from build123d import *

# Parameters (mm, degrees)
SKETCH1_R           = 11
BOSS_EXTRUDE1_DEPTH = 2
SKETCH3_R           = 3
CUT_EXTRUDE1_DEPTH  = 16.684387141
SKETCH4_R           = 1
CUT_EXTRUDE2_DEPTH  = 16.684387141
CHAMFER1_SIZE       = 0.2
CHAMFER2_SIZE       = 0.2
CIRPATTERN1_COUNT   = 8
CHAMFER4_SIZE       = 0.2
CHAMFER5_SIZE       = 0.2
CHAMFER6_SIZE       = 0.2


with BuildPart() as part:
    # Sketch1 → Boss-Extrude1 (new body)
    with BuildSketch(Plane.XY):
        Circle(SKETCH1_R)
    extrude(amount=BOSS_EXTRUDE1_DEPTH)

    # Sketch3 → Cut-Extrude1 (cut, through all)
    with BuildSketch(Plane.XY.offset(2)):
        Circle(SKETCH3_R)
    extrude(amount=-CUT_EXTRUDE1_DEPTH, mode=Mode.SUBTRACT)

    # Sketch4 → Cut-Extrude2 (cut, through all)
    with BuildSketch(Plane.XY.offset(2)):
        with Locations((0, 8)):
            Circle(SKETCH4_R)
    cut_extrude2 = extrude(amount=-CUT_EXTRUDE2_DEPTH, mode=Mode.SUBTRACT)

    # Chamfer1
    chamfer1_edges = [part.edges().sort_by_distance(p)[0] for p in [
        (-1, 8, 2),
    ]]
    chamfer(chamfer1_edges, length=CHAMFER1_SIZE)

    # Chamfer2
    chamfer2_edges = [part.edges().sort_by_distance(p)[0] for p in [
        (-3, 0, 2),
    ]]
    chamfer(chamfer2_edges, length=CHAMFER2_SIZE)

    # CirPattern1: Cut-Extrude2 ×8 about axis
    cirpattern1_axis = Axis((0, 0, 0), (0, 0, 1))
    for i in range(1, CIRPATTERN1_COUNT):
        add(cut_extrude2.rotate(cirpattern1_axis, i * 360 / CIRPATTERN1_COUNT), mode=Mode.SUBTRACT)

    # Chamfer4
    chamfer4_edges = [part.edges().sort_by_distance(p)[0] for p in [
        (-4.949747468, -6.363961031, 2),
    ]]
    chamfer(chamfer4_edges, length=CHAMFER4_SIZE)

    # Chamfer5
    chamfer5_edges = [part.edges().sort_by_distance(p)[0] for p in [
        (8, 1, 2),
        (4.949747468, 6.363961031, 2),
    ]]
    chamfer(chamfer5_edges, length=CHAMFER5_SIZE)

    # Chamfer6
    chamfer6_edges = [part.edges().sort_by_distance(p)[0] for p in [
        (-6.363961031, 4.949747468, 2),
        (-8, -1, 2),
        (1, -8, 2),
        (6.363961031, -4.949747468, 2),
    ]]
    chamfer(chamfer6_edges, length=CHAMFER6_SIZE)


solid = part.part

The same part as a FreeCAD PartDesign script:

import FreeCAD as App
import Part
import Sketcher

V = App.Vector
Q = App.Units.Quantity


def edges_at(feature, points):
    """Names of the edges that pass closest to the given points."""
    edges = feature.Shape.Edges
    near = lambda p: min(range(len(edges)), key=lambda i: edges[i].distToShape(Part.Vertex(*p))[0])
    return sorted({f"Edge{near(p) + 1}" for p in points})

doc = App.newDocument("Part")
params = doc.addObject("Spreadsheet::Sheet", "Params")
for row, (alias, value) in enumerate([
    ("sketch1_diameter", "22 mm"),
    ("pad1_length", "2 mm"),
    ("sketch2_diameter", "6 mm"),
    ("sketch3_diameter", "2 mm"),
    ("chamfer_size", "0.2 mm"),
    ("chamfer2_size", "0.2 mm"),
    ("chamfer3_size", "0.2 mm"),
    ("chamfer4_size", "0.2 mm"),
    ("chamfer5_size", "0.2 mm"),
], start=1):
    params.set(f"A{row}", alias)
    params.set(f"B{row}", "=" + value)
    params.setAlias(f"B{row}", alias)

body = doc.addObject("PartDesign::Body", "Body")

# Sketch on XY plane
sketch1 = doc.addObject("Sketcher::SketchObject", "Sketch")
body.addObject(sketch1)
sketch1.AttachmentSupport = (doc.XY_Plane, [""])
sketch1.MapMode = "FlatFace"
sketch1.addGeometry(Part.Circle(V(0, 0, 0), V(0, 0, 1), 11), False)
sketch1.addConstraint([
    Sketcher.Constraint("Coincident", 0, 3, -1, 1),
    Sketcher.Constraint("Diameter", 0, Q("22 mm")),
])
sketch1.setExpression("Constraints[1]", "Params.sketch1_diameter")
pad1 = doc.addObject("PartDesign::Pad", "Pad")
body.addObject(pad1)
pad1.Profile = sketch1
pad1.setExpression("Length", "Params.pad1_length")

# Sketch on XY plane
sketch2 = doc.addObject("Sketcher::SketchObject", "Sketch001")
body.addObject(sketch2)
sketch2.AttachmentSupport = (doc.XY_Plane, [""])
sketch2.MapMode = "FlatFace"
sketch2.AttachmentOffset = App.Placement(V(0, 0, 2), App.Rotation())
sketch2.addGeometry(Part.Circle(V(0, 0, 0), V(0, 0, 1), 3), False)
sketch2.addConstraint([
    Sketcher.Constraint("Coincident", 0, 3, -1, 1),
    Sketcher.Constraint("Diameter", 0, Q("6 mm")),
])
sketch2.setExpression("Constraints[1]", "Params.sketch2_diameter")
pocket1 = doc.addObject("PartDesign::Pocket", "Pocket")
body.addObject(pocket1)
pocket1.Profile = sketch2
pocket1.Type = "ThroughAll"

# Sketch on XY plane
sketch3 = doc.addObject("Sketcher::SketchObject", "Sketch002")
body.addObject(sketch3)
sketch3.AttachmentSupport = (doc.XY_Plane, [""])
sketch3.MapMode = "FlatFace"
sketch3.AttachmentOffset = App.Placement(V(0, 0, 2), App.Rotation())
sketch3.addGeometry(Part.Circle(V(0, 8, 0), V(0, 0, 1), 1), False)
sketch3.addConstraint([
    Sketcher.Constraint("PointOnObject", 0, 3, -2),
    Sketcher.Constraint("Diameter", 0, Q("2 mm")),
    Sketcher.Constraint("DistanceY", -1, 1, 0, 3, Q("8 mm")),
])
sketch3.setExpression("Constraints[1]", "Params.sketch3_diameter")
pocket2 = doc.addObject("PartDesign::Pocket", "Pocket001")
body.addObject(pocket2)
pocket2.Profile = sketch3
pocket2.Type = "ThroughAll"
doc.recompute()

chamfer = doc.addObject("PartDesign::Chamfer", "Chamfer")
body.addObject(chamfer)
chamfer.Base = (pocket2, edges_at(pocket2, [(-1, 8, 2)]))
chamfer.setExpression("Size", "Params.chamfer_size")
doc.recompute()

chamfer2 = doc.addObject("PartDesign::Chamfer", "Chamfer001")
body.addObject(chamfer2)
chamfer2.Base = (chamfer, edges_at(chamfer, [(-3, 0, 2)]))
chamfer2.setExpression("Size", "Params.chamfer2_size")
doc.recompute()

polarpattern = doc.addObject("PartDesign::PolarPattern", "PolarPattern")
body.addObject(polarpattern)
polarpattern.Originals = [pocket2]
polarpattern.Axis = (doc.Z_Axis, [""])
polarpattern.Angle = 360
polarpattern.Occurrences = 8
body.Tip = polarpattern
doc.recompute()

chamfer3 = doc.addObject("PartDesign::Chamfer", "Chamfer002")
body.addObject(chamfer3)
chamfer3.Base = (polarpattern, edges_at(polarpattern, [(-4.95, -6.364, 2)]))
chamfer3.setExpression("Size", "Params.chamfer3_size")
doc.recompute()

chamfer4 = doc.addObject("PartDesign::Chamfer", "Chamfer003")
body.addObject(chamfer4)
chamfer4.Base = (chamfer3, edges_at(chamfer3, [(8, 1, 2), (4.95, 6.364, 2)]))
chamfer4.setExpression("Size", "Params.chamfer4_size")
doc.recompute()

chamfer5 = doc.addObject("PartDesign::Chamfer", "Chamfer004")
body.addObject(chamfer5)
chamfer5.Base = (chamfer4, edges_at(chamfer4, [
    (-6.364, 4.95, 2),
    (-8, -1, 2),
    (1, -8, 2),
    (6.364, -4.95, 2),
]))
chamfer5.setExpression("Size", "Params.chamfer5_size")

doc.recompute()
